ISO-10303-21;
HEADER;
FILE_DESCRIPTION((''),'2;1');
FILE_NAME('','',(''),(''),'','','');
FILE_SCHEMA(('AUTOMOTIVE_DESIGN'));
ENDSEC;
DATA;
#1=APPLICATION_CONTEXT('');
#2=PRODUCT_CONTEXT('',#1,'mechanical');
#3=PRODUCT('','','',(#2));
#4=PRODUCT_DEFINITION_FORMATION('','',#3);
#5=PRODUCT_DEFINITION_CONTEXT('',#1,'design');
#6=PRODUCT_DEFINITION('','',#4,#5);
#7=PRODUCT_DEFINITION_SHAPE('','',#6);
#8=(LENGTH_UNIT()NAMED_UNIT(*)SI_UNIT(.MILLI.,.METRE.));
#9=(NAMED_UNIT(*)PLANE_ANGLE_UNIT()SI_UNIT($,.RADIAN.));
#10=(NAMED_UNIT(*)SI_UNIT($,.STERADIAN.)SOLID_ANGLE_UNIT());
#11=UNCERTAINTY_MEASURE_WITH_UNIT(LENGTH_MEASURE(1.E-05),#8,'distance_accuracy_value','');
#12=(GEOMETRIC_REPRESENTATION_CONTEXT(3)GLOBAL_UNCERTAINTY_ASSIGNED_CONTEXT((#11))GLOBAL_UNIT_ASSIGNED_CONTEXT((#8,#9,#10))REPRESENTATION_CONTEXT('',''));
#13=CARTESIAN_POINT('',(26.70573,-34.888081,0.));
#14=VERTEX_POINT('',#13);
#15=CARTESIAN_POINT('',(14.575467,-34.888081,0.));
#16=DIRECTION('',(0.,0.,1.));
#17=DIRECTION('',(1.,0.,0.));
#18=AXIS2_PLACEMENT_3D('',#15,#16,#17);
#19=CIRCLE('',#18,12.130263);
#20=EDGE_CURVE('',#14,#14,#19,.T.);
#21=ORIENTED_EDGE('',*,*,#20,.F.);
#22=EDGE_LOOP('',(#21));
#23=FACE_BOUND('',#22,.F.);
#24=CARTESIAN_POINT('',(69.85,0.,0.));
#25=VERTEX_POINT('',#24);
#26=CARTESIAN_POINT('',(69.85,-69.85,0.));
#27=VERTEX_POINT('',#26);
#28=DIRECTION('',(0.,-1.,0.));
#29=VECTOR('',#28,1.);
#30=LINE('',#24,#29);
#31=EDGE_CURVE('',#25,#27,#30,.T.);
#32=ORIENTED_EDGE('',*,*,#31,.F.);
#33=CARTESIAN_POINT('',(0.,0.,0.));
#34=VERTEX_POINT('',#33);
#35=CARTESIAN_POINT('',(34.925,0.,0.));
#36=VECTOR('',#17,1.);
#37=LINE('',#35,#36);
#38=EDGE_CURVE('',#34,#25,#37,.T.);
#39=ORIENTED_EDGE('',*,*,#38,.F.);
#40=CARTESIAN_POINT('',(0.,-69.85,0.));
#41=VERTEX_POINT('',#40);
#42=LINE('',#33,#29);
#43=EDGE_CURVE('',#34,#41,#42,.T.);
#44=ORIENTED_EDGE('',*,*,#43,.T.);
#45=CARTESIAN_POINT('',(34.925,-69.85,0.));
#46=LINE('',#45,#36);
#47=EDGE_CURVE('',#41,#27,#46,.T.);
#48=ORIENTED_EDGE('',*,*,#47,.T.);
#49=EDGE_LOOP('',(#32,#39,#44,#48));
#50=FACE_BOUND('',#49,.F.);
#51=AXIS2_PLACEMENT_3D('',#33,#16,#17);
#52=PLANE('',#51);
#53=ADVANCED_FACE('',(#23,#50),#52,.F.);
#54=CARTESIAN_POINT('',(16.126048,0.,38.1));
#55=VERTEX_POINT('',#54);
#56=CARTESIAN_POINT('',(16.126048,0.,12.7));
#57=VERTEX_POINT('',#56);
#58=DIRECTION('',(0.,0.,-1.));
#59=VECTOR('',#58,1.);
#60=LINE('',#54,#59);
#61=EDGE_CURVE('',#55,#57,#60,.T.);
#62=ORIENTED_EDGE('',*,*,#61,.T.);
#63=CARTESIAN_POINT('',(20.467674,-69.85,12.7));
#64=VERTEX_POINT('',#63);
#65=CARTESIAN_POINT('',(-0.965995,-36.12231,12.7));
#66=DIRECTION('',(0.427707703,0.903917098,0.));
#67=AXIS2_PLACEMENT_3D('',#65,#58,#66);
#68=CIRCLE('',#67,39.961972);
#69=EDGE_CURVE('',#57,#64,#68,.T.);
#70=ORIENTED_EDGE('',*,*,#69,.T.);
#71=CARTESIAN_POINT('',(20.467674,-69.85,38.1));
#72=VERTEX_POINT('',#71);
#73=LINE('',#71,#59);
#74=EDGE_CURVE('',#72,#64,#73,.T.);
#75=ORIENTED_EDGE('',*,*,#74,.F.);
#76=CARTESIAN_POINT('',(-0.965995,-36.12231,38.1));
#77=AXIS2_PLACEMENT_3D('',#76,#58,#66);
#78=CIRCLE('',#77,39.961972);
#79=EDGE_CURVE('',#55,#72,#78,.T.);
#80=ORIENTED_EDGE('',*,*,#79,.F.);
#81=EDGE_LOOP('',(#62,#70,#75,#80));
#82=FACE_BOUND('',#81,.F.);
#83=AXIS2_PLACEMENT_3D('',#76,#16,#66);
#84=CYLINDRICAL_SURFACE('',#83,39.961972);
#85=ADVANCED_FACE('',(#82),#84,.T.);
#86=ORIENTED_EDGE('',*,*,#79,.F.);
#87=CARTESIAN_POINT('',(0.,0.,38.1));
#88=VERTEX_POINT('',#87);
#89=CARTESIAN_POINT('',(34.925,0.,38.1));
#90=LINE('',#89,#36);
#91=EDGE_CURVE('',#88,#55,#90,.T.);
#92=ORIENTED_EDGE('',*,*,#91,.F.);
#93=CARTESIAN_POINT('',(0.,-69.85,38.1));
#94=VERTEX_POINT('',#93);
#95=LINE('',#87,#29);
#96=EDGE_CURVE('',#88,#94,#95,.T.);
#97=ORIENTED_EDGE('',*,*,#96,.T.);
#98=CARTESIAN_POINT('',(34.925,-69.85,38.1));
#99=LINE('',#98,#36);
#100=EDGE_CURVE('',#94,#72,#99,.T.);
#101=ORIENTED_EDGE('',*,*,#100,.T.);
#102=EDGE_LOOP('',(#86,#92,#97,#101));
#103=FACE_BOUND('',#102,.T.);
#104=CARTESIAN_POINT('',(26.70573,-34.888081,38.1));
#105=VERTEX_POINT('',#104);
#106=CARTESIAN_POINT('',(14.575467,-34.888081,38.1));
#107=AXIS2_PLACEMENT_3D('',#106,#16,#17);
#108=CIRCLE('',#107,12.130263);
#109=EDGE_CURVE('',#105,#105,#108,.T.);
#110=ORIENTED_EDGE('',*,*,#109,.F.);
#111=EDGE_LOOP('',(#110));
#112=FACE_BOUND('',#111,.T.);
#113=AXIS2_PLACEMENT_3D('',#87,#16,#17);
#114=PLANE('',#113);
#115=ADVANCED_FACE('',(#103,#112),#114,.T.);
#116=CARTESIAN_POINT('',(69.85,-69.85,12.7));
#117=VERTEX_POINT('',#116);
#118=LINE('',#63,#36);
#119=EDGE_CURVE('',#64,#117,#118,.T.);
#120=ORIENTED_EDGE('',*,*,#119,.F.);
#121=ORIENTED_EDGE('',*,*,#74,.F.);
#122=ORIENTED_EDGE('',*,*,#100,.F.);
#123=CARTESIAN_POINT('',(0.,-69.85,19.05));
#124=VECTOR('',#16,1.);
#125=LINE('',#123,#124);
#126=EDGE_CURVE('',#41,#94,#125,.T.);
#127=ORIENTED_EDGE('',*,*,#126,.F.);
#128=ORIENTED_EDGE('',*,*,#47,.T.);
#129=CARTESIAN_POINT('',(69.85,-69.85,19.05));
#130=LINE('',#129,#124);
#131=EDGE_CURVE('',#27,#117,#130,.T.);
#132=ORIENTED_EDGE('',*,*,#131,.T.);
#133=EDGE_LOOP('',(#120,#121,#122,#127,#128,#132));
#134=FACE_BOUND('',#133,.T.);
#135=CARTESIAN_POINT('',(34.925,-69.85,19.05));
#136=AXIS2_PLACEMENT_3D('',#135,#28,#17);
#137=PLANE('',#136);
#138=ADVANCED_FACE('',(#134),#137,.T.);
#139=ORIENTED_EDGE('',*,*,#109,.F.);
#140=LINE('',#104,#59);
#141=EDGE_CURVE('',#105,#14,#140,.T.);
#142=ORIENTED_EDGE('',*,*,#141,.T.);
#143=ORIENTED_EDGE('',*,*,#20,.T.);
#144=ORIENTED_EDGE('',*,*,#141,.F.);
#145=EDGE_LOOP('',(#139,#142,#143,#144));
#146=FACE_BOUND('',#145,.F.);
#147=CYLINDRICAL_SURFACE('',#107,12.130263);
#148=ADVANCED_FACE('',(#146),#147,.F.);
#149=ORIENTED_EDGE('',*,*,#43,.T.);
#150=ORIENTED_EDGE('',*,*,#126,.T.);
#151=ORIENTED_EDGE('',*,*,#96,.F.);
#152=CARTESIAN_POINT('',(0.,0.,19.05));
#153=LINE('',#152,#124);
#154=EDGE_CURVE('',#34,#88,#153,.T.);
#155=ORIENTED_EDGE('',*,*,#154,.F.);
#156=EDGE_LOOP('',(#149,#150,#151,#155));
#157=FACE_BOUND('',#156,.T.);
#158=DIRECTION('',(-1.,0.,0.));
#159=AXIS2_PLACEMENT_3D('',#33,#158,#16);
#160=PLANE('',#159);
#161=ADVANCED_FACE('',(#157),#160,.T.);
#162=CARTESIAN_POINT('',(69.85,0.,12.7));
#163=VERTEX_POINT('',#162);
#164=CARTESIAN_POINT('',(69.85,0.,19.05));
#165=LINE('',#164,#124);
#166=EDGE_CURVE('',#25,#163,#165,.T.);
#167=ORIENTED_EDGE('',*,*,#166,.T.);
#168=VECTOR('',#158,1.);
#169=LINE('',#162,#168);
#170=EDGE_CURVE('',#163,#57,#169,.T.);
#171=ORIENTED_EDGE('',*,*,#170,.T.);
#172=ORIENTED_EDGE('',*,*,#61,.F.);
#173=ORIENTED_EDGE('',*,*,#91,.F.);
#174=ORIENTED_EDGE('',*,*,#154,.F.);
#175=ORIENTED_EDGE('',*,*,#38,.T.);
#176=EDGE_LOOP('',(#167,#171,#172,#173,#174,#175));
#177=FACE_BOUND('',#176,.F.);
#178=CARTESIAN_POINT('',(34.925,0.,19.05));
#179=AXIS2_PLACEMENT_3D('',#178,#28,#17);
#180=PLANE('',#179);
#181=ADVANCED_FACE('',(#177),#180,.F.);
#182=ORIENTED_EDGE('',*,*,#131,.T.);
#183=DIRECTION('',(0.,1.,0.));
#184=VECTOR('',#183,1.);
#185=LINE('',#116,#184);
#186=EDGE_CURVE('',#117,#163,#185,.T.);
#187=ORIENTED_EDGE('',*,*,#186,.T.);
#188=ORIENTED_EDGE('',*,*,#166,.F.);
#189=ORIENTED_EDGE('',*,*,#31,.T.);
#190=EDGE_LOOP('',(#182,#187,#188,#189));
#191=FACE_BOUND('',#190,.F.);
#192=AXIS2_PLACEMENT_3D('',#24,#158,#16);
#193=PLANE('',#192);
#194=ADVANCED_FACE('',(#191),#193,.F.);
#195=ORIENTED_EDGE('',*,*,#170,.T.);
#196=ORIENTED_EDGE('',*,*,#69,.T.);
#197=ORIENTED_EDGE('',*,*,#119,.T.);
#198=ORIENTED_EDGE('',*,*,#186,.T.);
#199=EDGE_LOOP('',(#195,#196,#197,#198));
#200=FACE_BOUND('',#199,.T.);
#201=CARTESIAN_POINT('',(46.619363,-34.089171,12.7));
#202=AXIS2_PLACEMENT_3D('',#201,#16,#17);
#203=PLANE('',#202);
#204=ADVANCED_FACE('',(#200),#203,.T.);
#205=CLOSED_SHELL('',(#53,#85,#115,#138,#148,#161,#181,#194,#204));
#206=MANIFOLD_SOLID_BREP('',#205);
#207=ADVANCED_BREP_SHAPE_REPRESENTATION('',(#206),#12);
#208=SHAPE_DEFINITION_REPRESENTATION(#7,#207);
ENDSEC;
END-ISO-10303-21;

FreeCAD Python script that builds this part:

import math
import FreeCAD as App
import Part
import Sketcher

V = App.Vector
Q = App.Units.Quantity


def add_polygon(sketch, points):
    """Adds a closed chain of lines whose ends are joined by coincident constraints."""
    first, n = sketch.GeometryCount, len(points)
    for a, b in zip(points, points[1:] + points[:1]):
        sketch.addGeometry(Part.LineSegment(App.Vector(*a, 0), App.Vector(*b, 0)), False)
    for i in range(n):
        sketch.addConstraint(Sketcher.Constraint("Coincident", first + i, 2, first + (i + 1) % n, 1))

doc = App.newDocument("Part")
body = doc.addObject("PartDesign::Body", "Body")

sketch1 = body.newObject("Sketcher::SketchObject", "Sketch")
sketch1.AttachmentSupport = (doc.getObject("XZ_Plane"), [""])
sketch1.MapMode = "FlatFace"
add_polygon(sketch1, [(0, 38), (0, 0), (70, 0), (70, 38)])
sketch1.addConstraint([
    Sketcher.Constraint("Vertical", 0),
    Sketcher.Constraint("Horizontal", 1),
    Sketcher.Constraint("Vertical", 2),
    Sketcher.Constraint("Horizontal", 3),
    Sketcher.Constraint("Coincident", 0, 2, -1, 1),
    Sketcher.Constraint("DistanceY", 0, 2, 0, 1, Q("1.5 in")),
    Sketcher.Constraint("DistanceX", 1, 1, 1, 2, Q("2.75 in")),
])
pad1 = body.newObject("PartDesign::Pad", "Pad")
pad1.Profile = sketch1
pad1.Length = Q("2.75 in")

sketch2 = body.newObject("Sketcher::SketchObject", "Sketch001")
sketch2.AttachmentSupport = (doc.getObject("XY_Plane"), [""])
sketch2.MapMode = "FlatFace"
sketch2.AttachmentOffset = App.Placement(V(0, 0, 1.5 * 25.4), App.Rotation())
sketch2.addGeometry([
    Part.ArcOfCircle(Part.Circle(V(-1, -36, 0), V(0, 0, 1), 40), math.radians(-58), math.radians(65)),
    Part.LineSegment(V(20, -70, 0), V(70, -70, 0)),
    Part.LineSegment(V(70, -70, 0), V(70, 0, 0)),
    Part.LineSegment(V(70, 0, 0), V(16, 0, 0)),
], False)
sketch2.addConstraint([
    Sketcher.Constraint("Coincident", 0, 1, 1, 1),
    Sketcher.Constraint("Coincident", 1, 2, 2, 1),
    Sketcher.Constraint("Coincident", 2, 2, 3, 1),
    Sketcher.Constraint("Coincident", 3, 2, 0, 2),
    Sketcher.Constraint("Horizontal", 1),
    Sketcher.Constraint("Vertical", 2),
    Sketcher.Constraint("Horizontal", 3),
    Sketcher.Constraint("PointOnObject", 2, 2, -1),
    Sketcher.Constraint("DistanceY", 2, 1, 2, 2, Q("2.75 in")),
    Sketcher.Constraint("DistanceX", -1, 1, 1, 2, Q("2.75 in")),
    Sketcher.Constraint("Radius", 0, Q("39.961972 mm")),
    Sketcher.Constraint("DistanceX", 3, 2, 3, 1, Q("53.723952 mm")),
    Sketcher.Constraint("DistanceX", 1, 1, 1, 2, Q("49.382326 mm")),
])
pocket1 = body.newObject("PartDesign::Pocket", "Pocket")
pocket1.Profile = sketch2
pocket1.Length = Q("1 in")

sketch3 = body.newObject("Sketcher::SketchObject", "Sketch002")
sketch3.AttachmentSupport = (doc.getObject("XY_Plane"), [""])
sketch3.MapMode = "FlatFace"
sketch3.AttachmentOffset = App.Placement(V(0, 0, 1.5 * 25.4), App.Rotation())
sketch3.addGeometry(Part.Circle(V(15, -35, 0), V(0, 0, 1), 12), False)
sketch3.addConstraint([
    Sketcher.Constraint("Diameter", 0, Q("24.260526 mm")),
    Sketcher.Constraint("DistanceY", 0, 3, -1, 1, Q("34.888081 mm")),
    Sketcher.Constraint("DistanceX", -1, 1, 0, 3, Q("14.575467 mm")),
])
pocket2 = body.newObject("PartDesign::Pocket", "Pocket001")
pocket2.Profile = sketch3
pocket2.Length = Q("1.5 in")

doc.recompute()
